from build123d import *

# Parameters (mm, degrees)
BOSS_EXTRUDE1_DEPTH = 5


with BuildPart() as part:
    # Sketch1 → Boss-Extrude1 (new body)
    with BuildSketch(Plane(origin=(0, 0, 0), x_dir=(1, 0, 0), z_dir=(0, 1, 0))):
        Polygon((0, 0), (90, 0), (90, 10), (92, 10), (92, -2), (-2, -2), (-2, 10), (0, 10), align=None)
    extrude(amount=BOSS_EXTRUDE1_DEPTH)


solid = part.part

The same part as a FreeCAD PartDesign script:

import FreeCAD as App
import Part
import Sketcher
from FreeCAD import Vector


def add_polygon(sketch, points):
    """Adds a closed chain of lines whose ends are joined by coincident constraints."""
    first, n = sketch.GeometryCount, len(points)
    for a, b in zip(points, points[1:] + points[:1]):
        sketch.addGeometry(Part.LineSegment(App.Vector(*a, 0), App.Vector(*b, 0)), False)
    for i in range(n):
        sketch.addConstraint(Sketcher.Constraint("Coincident", first + i, 2, first + (i + 1) % n, 1))

doc = App.newDocument("Part")
body = doc.addObject("PartDesign::Body", "Body")

sketch1 = doc.addObject("Sketcher::SketchObject", "Sketch")
body.addObject(sketch1)
sketch1.AttachmentSupport = (doc.XZ_Plane, [""])
sketch1.MapMode = "FlatFace"
add_polygon(sketch1, [(90, 0), (0, 0), (0, -10), (-2, -10), (-2, 2), (92, 2), (92, -10), (90, -10)])
sketch1.addConstraint([
    Sketcher.Constraint("Horizontal", 0),
    Sketcher.Constraint("Vertical", 1),
    Sketcher.Constraint("Horizontal", 2),
    Sketcher.Constraint("Vertical", 3),
    Sketcher.Constraint("Horizontal", 4),
    Sketcher.Constraint("Vertical", 5),
    Sketcher.Constraint("Horizontal", 6),
    Sketcher.Constraint("Vertical", 7),
    Sketcher.Constraint("Coincident", 0, 2, -1, 1),
    Sketcher.Constraint("Horizontal", 2, 2, 5, 2),
    Sketcher.Constraint("Equal", 2, 6),
    Sketcher.Constraint("DistanceX", 0, 2, 0, 1, 90.0),
    Sketcher.Constraint("DistanceX", 2, 2, 2, 1, 2.0),
    Sketcher.Constraint("DistanceY", 1, 2, 1, 1, 10.0),
    Sketcher.Constraint("DistanceY", 3, 1, 3, 2, 12.0),
])
pad1 = doc.addObject("PartDesign::Pad", "Pad")
body.addObject(pad1)
pad1.Profile = sketch1
pad1.Length = 5
pad1.Reversed = True

doc.recompute()
